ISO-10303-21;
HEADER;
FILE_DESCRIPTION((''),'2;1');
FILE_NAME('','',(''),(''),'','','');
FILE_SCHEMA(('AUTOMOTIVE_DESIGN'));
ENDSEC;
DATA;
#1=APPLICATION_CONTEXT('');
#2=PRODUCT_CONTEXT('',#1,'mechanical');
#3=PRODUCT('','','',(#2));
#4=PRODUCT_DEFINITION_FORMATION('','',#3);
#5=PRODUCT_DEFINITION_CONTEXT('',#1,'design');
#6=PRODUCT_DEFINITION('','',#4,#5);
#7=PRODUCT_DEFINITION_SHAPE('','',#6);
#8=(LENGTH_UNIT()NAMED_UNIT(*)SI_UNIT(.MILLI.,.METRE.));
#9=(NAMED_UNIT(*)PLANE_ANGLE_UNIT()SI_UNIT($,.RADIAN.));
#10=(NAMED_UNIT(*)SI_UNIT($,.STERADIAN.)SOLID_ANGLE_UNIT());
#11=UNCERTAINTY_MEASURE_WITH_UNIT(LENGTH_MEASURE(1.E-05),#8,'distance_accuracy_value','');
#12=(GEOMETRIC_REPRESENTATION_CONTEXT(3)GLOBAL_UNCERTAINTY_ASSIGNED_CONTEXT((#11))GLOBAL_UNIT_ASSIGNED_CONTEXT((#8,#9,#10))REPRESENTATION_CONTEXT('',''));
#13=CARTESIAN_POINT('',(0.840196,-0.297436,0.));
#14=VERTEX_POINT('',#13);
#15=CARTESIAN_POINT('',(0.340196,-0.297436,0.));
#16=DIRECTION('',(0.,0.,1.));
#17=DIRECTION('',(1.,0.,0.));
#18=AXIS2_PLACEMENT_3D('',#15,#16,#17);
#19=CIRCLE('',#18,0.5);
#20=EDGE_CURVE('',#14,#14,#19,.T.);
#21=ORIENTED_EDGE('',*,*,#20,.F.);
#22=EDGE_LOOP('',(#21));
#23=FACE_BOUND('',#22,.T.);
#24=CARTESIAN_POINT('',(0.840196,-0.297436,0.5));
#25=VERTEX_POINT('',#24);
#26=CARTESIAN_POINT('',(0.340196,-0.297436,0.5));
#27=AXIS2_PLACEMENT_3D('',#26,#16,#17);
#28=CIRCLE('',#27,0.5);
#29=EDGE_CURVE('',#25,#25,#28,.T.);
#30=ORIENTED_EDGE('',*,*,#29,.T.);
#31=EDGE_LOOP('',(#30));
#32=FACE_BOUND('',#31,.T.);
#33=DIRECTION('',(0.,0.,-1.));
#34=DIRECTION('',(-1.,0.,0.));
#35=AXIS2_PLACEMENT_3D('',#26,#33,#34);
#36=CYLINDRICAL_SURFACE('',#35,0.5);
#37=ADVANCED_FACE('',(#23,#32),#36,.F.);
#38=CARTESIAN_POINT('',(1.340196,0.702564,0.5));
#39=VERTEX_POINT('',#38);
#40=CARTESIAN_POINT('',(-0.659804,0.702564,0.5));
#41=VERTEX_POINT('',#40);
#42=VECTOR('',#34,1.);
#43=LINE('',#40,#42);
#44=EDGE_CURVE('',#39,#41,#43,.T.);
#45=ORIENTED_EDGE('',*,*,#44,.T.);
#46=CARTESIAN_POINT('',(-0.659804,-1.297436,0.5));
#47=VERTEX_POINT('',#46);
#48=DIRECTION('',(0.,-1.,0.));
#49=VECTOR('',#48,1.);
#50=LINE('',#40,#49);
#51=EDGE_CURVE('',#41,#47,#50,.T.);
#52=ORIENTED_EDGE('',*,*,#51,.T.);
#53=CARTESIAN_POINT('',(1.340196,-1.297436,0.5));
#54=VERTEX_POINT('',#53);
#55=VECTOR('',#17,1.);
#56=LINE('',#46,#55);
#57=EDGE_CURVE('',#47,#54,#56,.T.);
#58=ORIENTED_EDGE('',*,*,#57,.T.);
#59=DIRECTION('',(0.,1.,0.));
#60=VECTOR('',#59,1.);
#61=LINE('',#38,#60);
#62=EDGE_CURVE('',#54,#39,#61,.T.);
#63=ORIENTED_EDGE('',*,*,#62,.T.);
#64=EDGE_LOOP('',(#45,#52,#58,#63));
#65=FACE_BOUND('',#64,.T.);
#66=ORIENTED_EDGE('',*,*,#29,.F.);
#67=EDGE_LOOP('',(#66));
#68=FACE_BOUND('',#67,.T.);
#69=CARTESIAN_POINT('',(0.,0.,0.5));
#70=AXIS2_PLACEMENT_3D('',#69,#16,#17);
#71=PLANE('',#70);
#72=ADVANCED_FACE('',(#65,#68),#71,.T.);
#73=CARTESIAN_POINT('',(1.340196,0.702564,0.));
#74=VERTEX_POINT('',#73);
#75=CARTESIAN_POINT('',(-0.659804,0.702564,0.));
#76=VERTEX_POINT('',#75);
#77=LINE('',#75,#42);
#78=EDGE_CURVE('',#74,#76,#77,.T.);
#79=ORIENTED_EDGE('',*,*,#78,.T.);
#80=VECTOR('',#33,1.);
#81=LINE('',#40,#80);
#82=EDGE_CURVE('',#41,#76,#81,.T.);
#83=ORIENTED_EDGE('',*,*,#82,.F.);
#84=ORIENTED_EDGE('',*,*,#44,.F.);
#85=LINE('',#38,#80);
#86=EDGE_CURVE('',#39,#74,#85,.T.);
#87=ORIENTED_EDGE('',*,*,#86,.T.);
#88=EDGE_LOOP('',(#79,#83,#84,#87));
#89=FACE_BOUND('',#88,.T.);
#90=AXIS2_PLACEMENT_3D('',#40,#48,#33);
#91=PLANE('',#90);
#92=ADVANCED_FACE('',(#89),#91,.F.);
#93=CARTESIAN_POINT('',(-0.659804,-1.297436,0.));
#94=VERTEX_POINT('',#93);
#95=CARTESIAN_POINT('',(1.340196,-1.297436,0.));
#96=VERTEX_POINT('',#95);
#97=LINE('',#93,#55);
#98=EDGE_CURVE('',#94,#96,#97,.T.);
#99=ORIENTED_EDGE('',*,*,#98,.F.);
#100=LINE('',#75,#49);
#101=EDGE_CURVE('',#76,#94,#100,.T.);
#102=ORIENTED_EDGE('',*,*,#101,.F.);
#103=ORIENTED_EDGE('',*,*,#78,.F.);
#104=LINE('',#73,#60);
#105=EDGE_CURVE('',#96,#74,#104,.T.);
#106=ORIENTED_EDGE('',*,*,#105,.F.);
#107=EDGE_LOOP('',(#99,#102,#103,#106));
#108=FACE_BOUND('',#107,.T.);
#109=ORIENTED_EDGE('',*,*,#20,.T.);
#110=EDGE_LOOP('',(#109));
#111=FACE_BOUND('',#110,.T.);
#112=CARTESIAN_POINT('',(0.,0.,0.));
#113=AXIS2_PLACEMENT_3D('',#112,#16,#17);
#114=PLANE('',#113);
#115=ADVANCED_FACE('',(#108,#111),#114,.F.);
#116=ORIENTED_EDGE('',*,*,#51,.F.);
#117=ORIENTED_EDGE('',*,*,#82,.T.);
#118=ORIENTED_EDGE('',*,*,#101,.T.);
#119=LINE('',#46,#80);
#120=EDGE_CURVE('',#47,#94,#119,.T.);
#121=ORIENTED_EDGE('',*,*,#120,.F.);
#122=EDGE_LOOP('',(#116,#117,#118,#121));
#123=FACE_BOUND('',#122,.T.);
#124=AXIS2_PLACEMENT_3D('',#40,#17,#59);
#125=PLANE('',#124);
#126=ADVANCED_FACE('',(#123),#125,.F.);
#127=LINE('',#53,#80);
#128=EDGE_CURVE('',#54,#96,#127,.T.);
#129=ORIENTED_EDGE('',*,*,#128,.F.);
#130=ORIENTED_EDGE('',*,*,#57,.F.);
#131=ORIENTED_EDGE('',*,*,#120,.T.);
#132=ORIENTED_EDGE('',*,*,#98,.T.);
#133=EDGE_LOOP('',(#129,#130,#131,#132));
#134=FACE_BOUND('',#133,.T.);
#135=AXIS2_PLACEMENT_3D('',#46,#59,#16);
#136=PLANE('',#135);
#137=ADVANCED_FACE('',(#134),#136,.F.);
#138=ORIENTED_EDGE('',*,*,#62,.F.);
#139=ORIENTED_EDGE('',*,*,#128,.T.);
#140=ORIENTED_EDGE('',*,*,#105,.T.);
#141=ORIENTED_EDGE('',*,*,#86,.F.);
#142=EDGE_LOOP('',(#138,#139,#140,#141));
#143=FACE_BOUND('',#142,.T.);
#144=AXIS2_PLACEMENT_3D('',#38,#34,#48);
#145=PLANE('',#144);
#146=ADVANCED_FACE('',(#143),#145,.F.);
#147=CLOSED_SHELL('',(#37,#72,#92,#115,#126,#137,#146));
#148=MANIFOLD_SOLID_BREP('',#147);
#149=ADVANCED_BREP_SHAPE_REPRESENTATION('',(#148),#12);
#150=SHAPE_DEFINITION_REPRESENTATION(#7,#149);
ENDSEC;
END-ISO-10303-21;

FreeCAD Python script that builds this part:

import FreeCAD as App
import Part
import Sketcher
Q = App.Units.Quantity

doc = App.newDocument("Part")
body = doc.addObject("PartDesign::Body", "Body")

# Sketch on XY plane
sketch1 = body.newObject("Sketcher::SketchObject", "Sketch")
sketch1.AttachmentSupport = (doc.getObject("XY_Plane"), [""])
sketch1.MapMode = "FlatFace"
sketch1.addGeometry(Part.LineSegment(App.Vector(-0.7, 0.7, 0), App.Vector(-0.7, -1.3, 0)), False)
sketch1.addGeometry(Part.LineSegment(App.Vector(-0.7, -1.3, 0), App.Vector(1.3, -1.3, 0)), False)
sketch1.addGeometry(Part.LineSegment(App.Vector(1.3, -1.3, 0), App.Vector(1.3, 0.7, 0)), False)
sketch1.addGeometry(Part.LineSegment(App.Vector(1.3, 0.7, 0), App.Vector(-0.7, 0.7, 0)), False)
sketch1.addGeometry(Part.Circle(App.Vector(0.3, -0.3, 0), App.Vector(0, 0, 1), 0.5), False)
sketch1.addConstraint(Sketcher.Constraint("Coincident", 0, 2, 1, 1))
sketch1.addConstraint(Sketcher.Constraint("Coincident", 1, 2, 2, 1))
sketch1.addConstraint(Sketcher.Constraint("Coincident", 2, 2, 3, 1))
sketch1.addConstraint(Sketcher.Constraint("Coincident", 3, 2, 0, 1))
sketch1.addConstraint(Sketcher.Constraint("Vertical", 0))
sketch1.addConstraint(Sketcher.Constraint("Horizontal", 1))
sketch1.addConstraint(Sketcher.Constraint("Vertical", 2))
sketch1.addConstraint(Sketcher.Constraint("Horizontal", 3))
sketch1.addConstraint(Sketcher.Constraint("Equal", 3, 0))
sketch1.addConstraint(Sketcher.Constraint("Diameter", 4, Q("1 mm")))
sketch1.addConstraint(Sketcher.Constraint("DistanceX", 1, 1, 1, 2, Q("2 mm")))
sketch1.addConstraint(Sketcher.Constraint("DistanceX", 0, 2, 4, 3, Q("1 mm")))
sketch1.addConstraint(Sketcher.Constraint("DistanceY", 0, 2, 4, 3, Q("1 mm")))
sketch1.addConstraint(Sketcher.Constraint("DistanceX", -1, 1, 4, 3, Q("0.340196 mm")))
sketch1.addConstraint(Sketcher.Constraint("DistanceY", 4, 3, -1, 1, Q("0.297436 mm")))
pad1 = body.newObject("PartDesign::Pad", "Pad")
pad1.Profile = sketch1
pad1.Length = 0.5

doc.recompute()
